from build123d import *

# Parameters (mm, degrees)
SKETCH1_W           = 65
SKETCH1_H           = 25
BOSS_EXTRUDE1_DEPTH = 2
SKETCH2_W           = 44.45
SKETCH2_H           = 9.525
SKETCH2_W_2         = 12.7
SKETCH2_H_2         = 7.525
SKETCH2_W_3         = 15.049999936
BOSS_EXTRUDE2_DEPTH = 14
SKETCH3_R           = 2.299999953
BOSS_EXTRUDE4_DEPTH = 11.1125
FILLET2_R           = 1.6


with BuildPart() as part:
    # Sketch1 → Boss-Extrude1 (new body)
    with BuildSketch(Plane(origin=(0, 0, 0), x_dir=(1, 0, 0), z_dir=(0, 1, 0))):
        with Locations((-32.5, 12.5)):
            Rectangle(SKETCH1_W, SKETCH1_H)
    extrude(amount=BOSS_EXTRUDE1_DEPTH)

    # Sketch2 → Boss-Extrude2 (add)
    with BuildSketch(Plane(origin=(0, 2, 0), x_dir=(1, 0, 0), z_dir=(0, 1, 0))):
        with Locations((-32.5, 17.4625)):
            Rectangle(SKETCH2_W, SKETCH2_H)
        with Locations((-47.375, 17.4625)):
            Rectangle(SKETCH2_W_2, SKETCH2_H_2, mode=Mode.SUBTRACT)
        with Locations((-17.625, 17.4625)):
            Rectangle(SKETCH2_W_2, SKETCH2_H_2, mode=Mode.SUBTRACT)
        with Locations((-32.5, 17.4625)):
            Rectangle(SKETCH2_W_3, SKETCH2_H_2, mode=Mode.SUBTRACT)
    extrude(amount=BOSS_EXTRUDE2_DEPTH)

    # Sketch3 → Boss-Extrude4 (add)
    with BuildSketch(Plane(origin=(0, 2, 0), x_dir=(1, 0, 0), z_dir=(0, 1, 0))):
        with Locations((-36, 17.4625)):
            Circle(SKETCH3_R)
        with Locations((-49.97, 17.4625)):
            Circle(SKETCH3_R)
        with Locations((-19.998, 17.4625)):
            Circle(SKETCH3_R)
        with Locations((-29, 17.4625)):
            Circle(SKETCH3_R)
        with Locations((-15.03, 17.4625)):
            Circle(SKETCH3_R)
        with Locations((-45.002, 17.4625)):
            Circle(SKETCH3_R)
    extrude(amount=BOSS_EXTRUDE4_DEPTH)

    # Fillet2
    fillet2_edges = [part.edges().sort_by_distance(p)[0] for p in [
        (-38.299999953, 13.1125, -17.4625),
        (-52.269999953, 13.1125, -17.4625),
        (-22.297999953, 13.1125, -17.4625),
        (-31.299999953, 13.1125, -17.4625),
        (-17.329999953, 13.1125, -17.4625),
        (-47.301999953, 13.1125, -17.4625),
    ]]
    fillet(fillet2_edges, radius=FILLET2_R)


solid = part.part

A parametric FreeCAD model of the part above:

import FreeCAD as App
import Part
import Sketcher
Q = App.Units.Quantity


def edges_at(feature, points):
    """Names of the edges that pass closest to the given points."""
    edges = feature.Shape.Edges
    near = lambda p: min(range(len(edges)), key=lambda i: edges[i].distToShape(Part.Vertex(*p))[0])
    return sorted({f"Edge{near(p) + 1}" for p in points})

doc = App.newDocument("Part")
params = doc.addObject("Spreadsheet::Sheet", "Params")
for row, (alias, value) in enumerate([
    ("sketch1_width", "65 mm"),
    ("sketch1_height", "25 mm"),
    ("pad1_length", "2 mm"),
    ("sketch2_width", "12.7 mm"),
    ("sketch2_width2", "44.45 mm"),
    ("pad2_length", "14 mm"),
    ("sketch3_diameter", "4.6 mm"),
    ("pad3_length", "11.1125 mm"),
    ("fillet_radius", "1.6 mm"),
], start=1):
    params.set(f"A{row}", alias)
    params.set(f"B{row}", "=" + value)
    params.setAlias(f"B{row}", alias)

body = doc.addObject("PartDesign::Body", "Body")

# Sketch on XZ plane
sketch1 = body.newObject("Sketcher::SketchObject", "Sketch")
sketch1.AttachmentSupport = (doc.getObject("XZ_Plane"), [""])
sketch1.MapMode = "FlatFace"
sketch1.addGeometry([
    Part.LineSegment(App.Vector(-65, -25, 0), App.Vector(-65, 0, 0)),
    Part.LineSegment(App.Vector(-65, 0, 0), App.Vector(0, 0, 0)),
    Part.LineSegment(App.Vector(0, 0, 0), App.Vector(0, -25, 0)),
    Part.LineSegment(App.Vector(0, -25, 0), App.Vector(-65, -25, 0)),
], False)
sketch1.addConstraint([
    Sketcher.Constraint("Coincident", 0, 2, 1, 1),
    Sketcher.Constraint("Coincident", 1, 2, 2, 1),
    Sketcher.Constraint("Coincident", 2, 2, 3, 1),
    Sketcher.Constraint("Coincident", 3, 2, 0, 1),
    Sketcher.Constraint("Vertical", 0),
    Sketcher.Constraint("Horizontal", 1),
    Sketcher.Constraint("Vertical", 2),
    Sketcher.Constraint("Horizontal", 3),
    Sketcher.Constraint("Coincident", 1, 2, -1, 1),
    Sketcher.Constraint("DistanceX", 1, 1, 1, 2, Q("65 mm")),
    Sketcher.Constraint("DistanceY", 0, 1, 0, 2, Q("25 mm")),
])
sketch1.setExpression("Constraints[9]", "Params.sketch1_width")
sketch1.setExpression("Constraints[10]", "Params.sketch1_height")
pad1 = body.newObject("PartDesign::Pad", "Pad")
pad1.Profile = sketch1
pad1.setExpression("Length", "Params.pad1_length")
pad1.Reversed = True

# Sketch on XZ plane
sketch2 = body.newObject("Sketcher::SketchObject", "Sketch001")
sketch2.AttachmentSupport = (doc.getObject("XZ_Plane"), [""])
sketch2.MapMode = "FlatFace"
sketch2.AttachmentOffset = App.Placement(App.Vector(0, 0, -2), App.Rotation())
sketch2.addGeometry([
    Part.LineSegment(App.Vector(-54.725, -22.225, 0), App.Vector(-54.725, -12.7, 0)),  # 0
    Part.LineSegment(App.Vector(-54.725, -12.7, 0), App.Vector(-10.275, -12.7, 0)),  # 1
    Part.LineSegment(App.Vector(-10.275, -12.7, 0), App.Vector(-10.275, -22.225, 0)),  # 2
    Part.LineSegment(App.Vector(-10.275, -22.225, 0), App.Vector(-54.725, -22.225, 0)),  # 3
    Part.LineSegment(App.Vector(-41.025, -13.7, 0), App.Vector(-53.725, -13.7, 0)),  # 4
    Part.LineSegment(App.Vector(-53.725, -13.7, 0), App.Vector(-53.725, -21.225, 0)),  # 5
    Part.LineSegment(App.Vector(-53.725, -21.225, 0), App.Vector(-41.025, -21.225, 0)),  # 6
    Part.LineSegment(App.Vector(-41.025, -21.225, 0), App.Vector(-41.025, -13.7, 0)),  # 7
    Part.LineSegment(App.Vector(-24.975, -13.7, 0), App.Vector(-40.025, -13.7, 0)),  # 8
    Part.LineSegment(App.Vector(-40.025, -13.7, 0), App.Vector(-40.025, -21.225, 0)),  # 9
    Part.LineSegment(App.Vector(-40.025, -21.225, 0), App.Vector(-24.975, -21.225, 0)),  # 10
    Part.LineSegment(App.Vector(-24.975, -21.225, 0), App.Vector(-24.975, -13.7, 0)),  # 11
    Part.LineSegment(App.Vector(-11.275, -13.7, 0), App.Vector(-23.975, -13.7, 0)),  # 12
    Part.LineSegment(App.Vector(-23.975, -13.7, 0), App.Vector(-23.975, -21.225, 0)),  # 13
    Part.LineSegment(App.Vector(-23.975, -21.225, 0), App.Vector(-11.275, -21.225, 0)),  # 14
    Part.LineSegment(App.Vector(-11.275, -21.225, 0), App.Vector(-11.275, -13.7, 0)),  # 15
], False)
sketch2.addConstraint([
    Sketcher.Constraint("Coincident", 0, 2, 1, 1),
    Sketcher.Constraint("Coincident", 1, 2, 2, 1),
    Sketcher.Constraint("Coincident", 2, 2, 3, 1),
    Sketcher.Constraint("Coincident", 3, 2, 0, 1),
    Sketcher.Constraint("Coincident", 4, 2, 5, 1),
    Sketcher.Constraint("Coincident", 5, 2, 6, 1),
    Sketcher.Constraint("Coincident", 6, 2, 7, 1),
    Sketcher.Constraint("Coincident", 7, 2, 4, 1),
    Sketcher.Constraint("Coincident", 8, 2, 9, 1),
    Sketcher.Constraint("Coincident", 9, 2, 10, 1),
    Sketcher.Constraint("Coincident", 10, 2, 11, 1),
    Sketcher.Constraint("Coincident", 11, 2, 8, 1),
    Sketcher.Constraint("Coincident", 12, 2, 13, 1),
    Sketcher.Constraint("Coincident", 13, 2, 14, 1),
    Sketcher.Constraint("Coincident", 14, 2, 15, 1),
    Sketcher.Constraint("Coincident", 15, 2, 12, 1),
    Sketcher.Constraint("Vertical", 0),
    Sketcher.Constraint("Horizontal", 1),
    Sketcher.Constraint("Vertical", 2),
    Sketcher.Constraint("Horizontal", 3),
    Sketcher.Constraint("Horizontal", 4),
    Sketcher.Constraint("Vertical", 5),
    Sketcher.Constraint("Horizontal", 6),
    Sketcher.Constraint("Vertical", 7),
    Sketcher.Constraint("Horizontal", 8),
    Sketcher.Constraint("Vertical", 9),
    Sketcher.Constraint("Horizontal", 10),
    Sketcher.Constraint("Vertical", 11),
    Sketcher.Constraint("Horizontal", 12),
    Sketcher.Constraint("Vertical", 13),
    Sketcher.Constraint("Horizontal", 14),
    Sketcher.Constraint("Vertical", 15),
    Sketcher.Constraint("Horizontal", 7, 2, 8, 2),
    Sketcher.Constraint("Horizontal", 6, 2, 9, 2),
    Sketcher.Constraint("Horizontal", 11, 2, 12, 2),
    Sketcher.Constraint("Horizontal", 10, 2, 13, 2),
    Sketcher.Constraint("Equal", 6, 12),
    Sketcher.Constraint("DistanceX", 4, 2, 4, 1, Q("12.7 mm")),
    Sketcher.Constraint("DistanceX", 0, 2, 4, 2, Q("1 mm")),
    Sketcher.Constraint("DistanceY", 4, 2, 0, 2, Q("1 mm")),
    Sketcher.Constraint("DistanceY", 3, 2, 5, 2, Q("1 mm")),
    Sketcher.Constraint("DistanceX", 7, 2, 8, 2, Q("1 mm")),
    Sketcher.Constraint("DistanceX", 11, 2, 12, 2, Q("1 mm")),
    Sketcher.Constraint("DistanceX", 14, 2, 2, 2, Q("1 mm")),
    Sketcher.Constraint("DistanceX", 1, 1, 1, 2, Q("44.45 mm")),
    Sketcher.Constraint("DistanceY", 0, 2, -1, 1, Q("12.7 mm")),
    Sketcher.Constraint("DistanceY", 0, 1, 0, 2, Q("9.525 mm")),
    Sketcher.Constraint("DistanceX", 0, 2, -1, 1, Q("54.725 mm")),
])
sketch2.setExpression("Constraints[37]", "Params.sketch2_width")
sketch2.setExpression("Constraints[44]", "Params.sketch2_width2")
pad2 = body.newObject("PartDesign::Pad", "Pad001")
pad2.Profile = sketch2
pad2.setExpression("Length", "Params.pad2_length")
pad2.Reversed = True

# Sketch on XZ plane
sketch3 = body.newObject("Sketcher::SketchObject", "Sketch002")
sketch3.AttachmentSupport = (doc.getObject("XZ_Plane"), [""])
sketch3.MapMode = "FlatFace"
sketch3.AttachmentOffset = App.Placement(App.Vector(0, 0, -2), App.Rotation())
sketch3.addGeometry([
    Part.Circle(App.Vector(-36, -17.4625, 0), App.Vector(0, 0, 1), 2.3),  # 0
    Part.Circle(App.Vector(-49.97, -17.4625, 0), App.Vector(0, 0, 1), 2.3),  # 1
    Part.Circle(App.Vector(-19.998, -17.4625, 0), App.Vector(0, 0, 1), 2.3),  # 2
    Part.Circle(App.Vector(-29, -17.4625, 0), App.Vector(0, 0, 1), 2.3),  # 3
    Part.Circle(App.Vector(-15.03, -17.4625, 0), App.Vector(0, 0, 1), 2.3),  # 4
    Part.Circle(App.Vector(-45.002, -17.4625, 0), App.Vector(0, 0, 1), 2.3),  # 5
], False)
sketch3.addConstraint([
    Sketcher.Constraint("Equal", 0, 1),
    Sketcher.Constraint("Equal", 1, 2),
    Sketcher.Constraint("Equal", 2, 3),
    Sketcher.Constraint("Equal", 3, 4),
    Sketcher.Constraint("Equal", 4, 5),
    Sketcher.Constraint("Horizontal", 0, 3, 1, 3),
    Sketcher.Constraint("Horizontal", 1, 3, 2, 3),
    Sketcher.Constraint("Horizontal", 2, 3, 3, 3),
    Sketcher.Constraint("Horizontal", 3, 3, 4, 3),
    Sketcher.Constraint("Horizontal", 4, 3, 5, 3),
    Sketcher.Constraint("Diameter", 0, Q("4.6 mm")),
    Sketcher.Constraint("DistanceX", 0, 3, -1, 1, Q("36 mm")),
    Sketcher.Constraint("DistanceX", 3, 3, -1, 1, Q("29 mm")),
    Sketcher.Constraint("DistanceX", 1, 3, -1, 1, Q("49.97 mm")),
    Sketcher.Constraint("DistanceX", 4, 3, -1, 1, Q("15.03 mm")),
    Sketcher.Constraint("DistanceX", 2, 3, -1, 1, Q("19.998 mm")),
    Sketcher.Constraint("DistanceX", 5, 3, -1, 1, Q("45.002 mm")),
    Sketcher.Constraint("DistanceY", 0, 3, -1, 1, Q("17.4625 mm")),
])
sketch3.setExpression("Constraints[10]", "Params.sketch3_diameter")
pad3 = body.newObject("PartDesign::Pad", "Pad002")
pad3.Profile = sketch3
pad3.setExpression("Length", "Params.pad3_length")
pad3.Reversed = True
doc.recompute()

fillet = body.newObject("PartDesign::Fillet", "Fillet")
fillet.Base = (pad3, edges_at(pad3, [
    (-38.3, 13.113, -17.462),
    (-52.27, 13.113, -17.462),
    (-22.298, 13.113, -17.462),
    (-31.3, 13.113, -17.462),
    (-17.33, 13.113, -17.462),
    (-47.302, 13.113, -17.462),
]))
fillet.setExpression("Radius", "Params.fillet_radius")

doc.recompute()
